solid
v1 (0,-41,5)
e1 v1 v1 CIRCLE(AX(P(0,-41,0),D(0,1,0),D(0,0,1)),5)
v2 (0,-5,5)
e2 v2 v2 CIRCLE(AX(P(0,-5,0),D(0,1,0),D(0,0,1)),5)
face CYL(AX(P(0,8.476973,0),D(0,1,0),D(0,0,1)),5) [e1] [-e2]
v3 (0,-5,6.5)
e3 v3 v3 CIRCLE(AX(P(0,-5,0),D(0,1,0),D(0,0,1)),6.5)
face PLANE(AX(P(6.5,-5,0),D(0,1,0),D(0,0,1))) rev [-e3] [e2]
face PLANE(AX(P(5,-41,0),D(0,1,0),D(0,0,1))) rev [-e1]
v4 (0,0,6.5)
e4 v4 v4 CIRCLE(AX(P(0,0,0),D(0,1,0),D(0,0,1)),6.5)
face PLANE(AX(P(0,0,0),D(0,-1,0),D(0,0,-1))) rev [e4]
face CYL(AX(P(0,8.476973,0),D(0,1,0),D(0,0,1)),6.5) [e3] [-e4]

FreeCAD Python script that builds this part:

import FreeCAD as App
import Part
import Sketcher
Q = App.Units.Quantity

doc = App.newDocument("Part")
body = doc.addObject("PartDesign::Body", "Body")

sketch1 = doc.addObject("Sketcher::SketchObject", "Sketch")
body.addObject(sketch1)
sketch1.AttachmentSupport = (doc.XY_Plane, [""])
sketch1.MapMode = "FlatFace"
sketch1.addGeometry([
    Part.LineSegment(App.Vector(6.5, 0, 0), App.Vector(0, 0, 0)),
    Part.LineSegment(App.Vector(0, 0, 0), App.Vector(0, -41, 0)),
    Part.LineSegment(App.Vector(0, -41, 0), App.Vector(5, -41, 0)),
    Part.LineSegment(App.Vector(5, -41, 0), App.Vector(5, -5, 0)),
    Part.LineSegment(App.Vector(5, -5, 0), App.Vector(6.5, -5, 0)),
    Part.LineSegment(App.Vector(6.5, -5, 0), App.Vector(6.5, 0, 0)),
], False)
sketch1.addConstraint([
    Sketcher.Constraint("Coincident", 0, 2, 1, 1),
    Sketcher.Constraint("Coincident", 1, 2, 2, 1),
    Sketcher.Constraint("Coincident", 2, 2, 3, 1),
    Sketcher.Constraint("Coincident", 3, 2, 4, 1),
    Sketcher.Constraint("Coincident", 4, 2, 5, 1),
    Sketcher.Constraint("Coincident", 5, 2, 0, 1),
    Sketcher.Constraint("Horizontal", 0),
    Sketcher.Constraint("Vertical", 1),
    Sketcher.Constraint("Horizontal", 2),
    Sketcher.Constraint("Vertical", 3),
    Sketcher.Constraint("Horizontal", 4),
    Sketcher.Constraint("Vertical", 5),
    Sketcher.Constraint("Coincident", 0, 2, -1, 1),
    Sketcher.Constraint("Equal", 2, 5),
    Sketcher.Constraint("DistanceX", 2, 1, 2, 2, Q("5 mm")),
    Sketcher.Constraint("DistanceY", 1, 2, 1, 1, Q("41 mm")),
    Sketcher.Constraint("DistanceX", 0, 2, 0, 1, Q("6.5 mm")),
])
revolution = doc.addObject("PartDesign::Revolution", "Revolution")
body.addObject(revolution)
revolution.Profile = sketch1
revolution.ReferenceAxis = (sketch1, ["V_Axis"])
revolution.Angle = 360

doc.recompute()
